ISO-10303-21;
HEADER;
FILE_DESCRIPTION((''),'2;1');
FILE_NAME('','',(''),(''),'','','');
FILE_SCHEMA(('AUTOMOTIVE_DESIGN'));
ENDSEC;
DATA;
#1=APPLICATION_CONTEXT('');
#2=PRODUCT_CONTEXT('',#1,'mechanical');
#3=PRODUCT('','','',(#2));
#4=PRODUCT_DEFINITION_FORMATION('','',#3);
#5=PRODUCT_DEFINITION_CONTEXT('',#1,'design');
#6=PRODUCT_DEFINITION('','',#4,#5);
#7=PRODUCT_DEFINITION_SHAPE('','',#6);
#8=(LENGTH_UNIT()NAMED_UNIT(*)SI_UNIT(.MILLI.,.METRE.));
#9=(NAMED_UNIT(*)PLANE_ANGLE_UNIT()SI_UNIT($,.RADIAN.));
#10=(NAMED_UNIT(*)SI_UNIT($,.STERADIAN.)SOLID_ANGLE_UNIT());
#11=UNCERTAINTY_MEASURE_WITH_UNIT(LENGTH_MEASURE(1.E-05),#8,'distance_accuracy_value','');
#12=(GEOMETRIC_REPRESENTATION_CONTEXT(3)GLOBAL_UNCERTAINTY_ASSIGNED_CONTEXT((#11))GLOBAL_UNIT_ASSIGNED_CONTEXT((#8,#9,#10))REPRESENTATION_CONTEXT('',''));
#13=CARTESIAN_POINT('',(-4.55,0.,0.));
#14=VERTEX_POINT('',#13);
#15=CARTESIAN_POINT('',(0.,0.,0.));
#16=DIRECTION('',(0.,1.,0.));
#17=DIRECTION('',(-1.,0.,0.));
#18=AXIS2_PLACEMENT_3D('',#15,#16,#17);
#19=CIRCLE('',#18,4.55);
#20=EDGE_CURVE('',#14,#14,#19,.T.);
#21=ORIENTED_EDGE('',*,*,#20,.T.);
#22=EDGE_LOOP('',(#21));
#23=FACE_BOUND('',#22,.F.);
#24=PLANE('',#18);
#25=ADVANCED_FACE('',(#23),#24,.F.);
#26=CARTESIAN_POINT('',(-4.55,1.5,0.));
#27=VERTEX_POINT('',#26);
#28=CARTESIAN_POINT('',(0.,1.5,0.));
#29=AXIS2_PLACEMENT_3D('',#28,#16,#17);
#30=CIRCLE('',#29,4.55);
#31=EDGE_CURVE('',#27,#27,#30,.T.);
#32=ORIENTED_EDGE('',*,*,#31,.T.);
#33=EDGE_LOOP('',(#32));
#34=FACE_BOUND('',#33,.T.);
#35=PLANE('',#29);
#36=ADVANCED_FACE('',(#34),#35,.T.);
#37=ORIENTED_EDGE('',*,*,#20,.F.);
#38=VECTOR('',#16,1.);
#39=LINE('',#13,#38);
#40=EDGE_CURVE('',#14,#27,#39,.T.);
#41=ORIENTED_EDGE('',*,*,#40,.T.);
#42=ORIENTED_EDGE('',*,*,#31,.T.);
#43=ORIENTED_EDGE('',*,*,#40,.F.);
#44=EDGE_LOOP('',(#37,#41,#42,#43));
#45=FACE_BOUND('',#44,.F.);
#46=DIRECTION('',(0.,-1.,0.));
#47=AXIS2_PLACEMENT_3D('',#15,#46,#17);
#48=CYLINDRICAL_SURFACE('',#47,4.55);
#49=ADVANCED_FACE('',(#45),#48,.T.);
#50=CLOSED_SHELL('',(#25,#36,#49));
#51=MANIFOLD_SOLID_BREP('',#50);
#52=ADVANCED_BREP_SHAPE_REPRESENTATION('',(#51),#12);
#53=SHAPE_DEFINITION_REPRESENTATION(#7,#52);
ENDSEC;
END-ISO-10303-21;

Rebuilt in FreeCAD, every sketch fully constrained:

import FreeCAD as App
import Part
import Sketcher
from FreeCAD import Vector

doc = App.newDocument("Part")
body = doc.addObject("PartDesign::Body", "Body")

# Sketch on XZ plane
sketch1 = body.newObject("Sketcher::SketchObject", "Sketch")
sketch1.AttachmentSupport = (doc.getObject("XZ_Plane"), [""])
sketch1.MapMode = "FlatFace"
sketch1.addGeometry(Part.Circle(Vector(0, 0, 0), Vector(0, 0, 1), 4.55), False)
sketch1.addConstraint([
    Sketcher.Constraint("Coincident", 0, 3, -1, 1),
    Sketcher.Constraint("Diameter", 0, 9.1),
])
pad1 = body.newObject("PartDesign::Pad", "Pad")
pad1.Profile = sketch1
pad1.Length = 1.5
pad1.Reversed = True

doc.recompute()
